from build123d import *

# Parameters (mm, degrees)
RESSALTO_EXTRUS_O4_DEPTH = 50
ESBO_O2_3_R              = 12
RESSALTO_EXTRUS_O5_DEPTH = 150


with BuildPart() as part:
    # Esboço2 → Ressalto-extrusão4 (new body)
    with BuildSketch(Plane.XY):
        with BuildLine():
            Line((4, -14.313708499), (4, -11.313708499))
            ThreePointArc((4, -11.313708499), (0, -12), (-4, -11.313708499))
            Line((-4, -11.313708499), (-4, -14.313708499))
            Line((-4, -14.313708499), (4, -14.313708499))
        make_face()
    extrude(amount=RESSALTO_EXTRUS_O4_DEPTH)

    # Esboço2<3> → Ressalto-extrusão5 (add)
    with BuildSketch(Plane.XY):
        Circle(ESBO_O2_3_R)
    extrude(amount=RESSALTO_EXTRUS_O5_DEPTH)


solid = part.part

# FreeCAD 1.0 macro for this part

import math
import FreeCAD as App
import Part
import Sketcher
Q = App.Units.Quantity

doc = App.newDocument("Part")
body = doc.addObject("PartDesign::Body", "Body")

# Sketch on XY plane
sketch1 = body.newObject("Sketcher::SketchObject", "Sketch")
sketch1.AttachmentSupport = (doc.getObject("XY_Plane"), [""])
sketch1.MapMode = "FlatFace"
sketch1.addGeometry(Part.LineSegment(App.Vector(4, -14.3, 0), App.Vector(4, -11.3, 0)), False)
sketch1.addGeometry(Part.ArcOfCircle(Part.Circle(App.Vector(0, 0, 0), App.Vector(0, 0, 1), 12), math.radians(-109), math.radians(-71)), False)
sketch1.addGeometry(Part.LineSegment(App.Vector(-4, -11.3, 0), App.Vector(-4, -14.3, 0)), False)
sketch1.addGeometry(Part.LineSegment(App.Vector(-4, -14.3, 0), App.Vector(4, -14.3, 0)), False)
sketch1.addConstraint(Sketcher.Constraint("Coincident", 0, 2, 1, 2))
sketch1.addConstraint(Sketcher.Constraint("Coincident", 1, 1, 2, 1))
sketch1.addConstraint(Sketcher.Constraint("Coincident", 2, 2, 3, 1))
sketch1.addConstraint(Sketcher.Constraint("Coincident", 3, 2, 0, 1))
sketch1.addConstraint(Sketcher.Constraint("Vertical", 0))
sketch1.addConstraint(Sketcher.Constraint("Vertical", 2))
sketch1.addConstraint(Sketcher.Constraint("Horizontal", 3))
sketch1.addConstraint(Sketcher.Constraint("Coincident", 1, 3, -1, 1))
sketch1.addConstraint(Sketcher.Constraint("Horizontal", 0, 2, 1, 1))
sketch1.addConstraint(Sketcher.Constraint("Radius", 1, Q("12 mm")))
sketch1.addConstraint(Sketcher.Constraint("DistanceX", 3, 1, 3, 2, Q("8 mm")))
sketch1.addConstraint(Sketcher.Constraint("DistanceY", 0, 1, 0, 2, Q("3 mm")))
pad1 = body.newObject("PartDesign::Pad", "Pad")
pad1.Profile = sketch1
pad1.Length = 50

# Sketch on XY plane
sketch2 = body.newObject("Sketcher::SketchObject", "Sketch001")
sketch2.AttachmentSupport = (doc.getObject("XY_Plane"), [""])
sketch2.MapMode = "FlatFace"
sketch2.addGeometry(Part.Circle(App.Vector(0, 0, 0), App.Vector(0, 0, 1), 12), False)
sketch2.addConstraint(Sketcher.Constraint("Coincident", 0, 3, -1, 1))
sketch2.addConstraint(Sketcher.Constraint("Diameter", 0, Q("24 mm")))
pad2 = body.newObject("PartDesign::Pad", "Pad001")
pad2.Profile = sketch2
pad2.Length = 150

doc.recompute()
